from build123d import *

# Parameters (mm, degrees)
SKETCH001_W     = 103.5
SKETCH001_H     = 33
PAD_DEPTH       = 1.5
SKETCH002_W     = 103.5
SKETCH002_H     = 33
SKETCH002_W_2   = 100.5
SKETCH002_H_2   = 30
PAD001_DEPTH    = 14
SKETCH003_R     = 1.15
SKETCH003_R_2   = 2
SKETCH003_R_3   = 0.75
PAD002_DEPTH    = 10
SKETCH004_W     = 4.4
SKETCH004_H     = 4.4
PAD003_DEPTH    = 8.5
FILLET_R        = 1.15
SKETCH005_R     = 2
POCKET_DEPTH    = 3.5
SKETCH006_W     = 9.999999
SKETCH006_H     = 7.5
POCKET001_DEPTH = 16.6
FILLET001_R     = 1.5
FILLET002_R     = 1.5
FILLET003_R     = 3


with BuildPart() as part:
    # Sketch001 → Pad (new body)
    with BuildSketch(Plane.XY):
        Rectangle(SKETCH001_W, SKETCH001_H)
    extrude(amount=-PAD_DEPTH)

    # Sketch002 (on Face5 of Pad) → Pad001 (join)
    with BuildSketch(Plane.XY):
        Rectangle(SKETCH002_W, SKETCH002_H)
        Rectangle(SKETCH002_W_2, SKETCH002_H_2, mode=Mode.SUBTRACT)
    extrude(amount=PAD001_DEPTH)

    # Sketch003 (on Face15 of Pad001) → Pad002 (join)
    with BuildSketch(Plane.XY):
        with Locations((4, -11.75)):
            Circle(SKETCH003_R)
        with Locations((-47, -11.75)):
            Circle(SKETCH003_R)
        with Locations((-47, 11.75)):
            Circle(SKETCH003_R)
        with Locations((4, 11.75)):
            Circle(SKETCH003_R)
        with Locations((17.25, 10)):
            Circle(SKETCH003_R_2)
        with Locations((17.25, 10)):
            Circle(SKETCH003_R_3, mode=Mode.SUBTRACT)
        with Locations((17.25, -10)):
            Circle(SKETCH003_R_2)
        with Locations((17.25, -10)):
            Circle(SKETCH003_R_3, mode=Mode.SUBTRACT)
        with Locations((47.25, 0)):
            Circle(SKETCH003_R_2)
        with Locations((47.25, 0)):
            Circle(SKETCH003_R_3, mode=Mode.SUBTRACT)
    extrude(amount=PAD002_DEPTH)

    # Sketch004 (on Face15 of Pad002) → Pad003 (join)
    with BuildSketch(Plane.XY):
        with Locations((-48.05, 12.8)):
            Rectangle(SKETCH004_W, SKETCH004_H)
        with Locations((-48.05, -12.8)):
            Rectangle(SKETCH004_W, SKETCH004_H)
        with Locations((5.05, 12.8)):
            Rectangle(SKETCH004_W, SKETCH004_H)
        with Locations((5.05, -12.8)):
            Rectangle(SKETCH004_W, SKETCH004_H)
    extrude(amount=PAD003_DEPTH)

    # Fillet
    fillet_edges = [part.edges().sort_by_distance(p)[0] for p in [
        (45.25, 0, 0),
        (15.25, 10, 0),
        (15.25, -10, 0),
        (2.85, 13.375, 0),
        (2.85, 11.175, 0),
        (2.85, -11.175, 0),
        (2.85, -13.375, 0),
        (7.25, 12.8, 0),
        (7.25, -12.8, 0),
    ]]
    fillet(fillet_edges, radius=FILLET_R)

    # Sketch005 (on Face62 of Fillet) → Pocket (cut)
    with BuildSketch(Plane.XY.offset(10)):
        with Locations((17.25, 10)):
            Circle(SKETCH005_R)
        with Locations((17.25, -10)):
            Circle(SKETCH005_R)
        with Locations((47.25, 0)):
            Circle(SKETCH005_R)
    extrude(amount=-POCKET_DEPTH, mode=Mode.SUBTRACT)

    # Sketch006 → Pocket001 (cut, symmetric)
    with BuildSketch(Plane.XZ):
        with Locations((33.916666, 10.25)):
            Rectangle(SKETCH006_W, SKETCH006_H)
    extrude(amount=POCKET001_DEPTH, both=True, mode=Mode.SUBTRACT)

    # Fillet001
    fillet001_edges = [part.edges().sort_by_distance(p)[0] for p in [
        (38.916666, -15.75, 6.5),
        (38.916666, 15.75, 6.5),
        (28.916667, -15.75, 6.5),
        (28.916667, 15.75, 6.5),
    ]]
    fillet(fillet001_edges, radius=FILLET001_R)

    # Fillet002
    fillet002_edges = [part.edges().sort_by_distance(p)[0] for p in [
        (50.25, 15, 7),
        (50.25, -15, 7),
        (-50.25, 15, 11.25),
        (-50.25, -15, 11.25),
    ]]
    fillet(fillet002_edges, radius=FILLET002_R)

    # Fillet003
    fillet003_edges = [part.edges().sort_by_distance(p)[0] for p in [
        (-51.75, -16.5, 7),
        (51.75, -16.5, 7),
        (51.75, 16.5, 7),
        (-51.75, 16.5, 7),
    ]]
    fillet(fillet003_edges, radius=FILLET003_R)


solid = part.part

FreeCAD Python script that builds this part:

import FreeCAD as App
import Part
import Sketcher


def edges_at(feature, points):
    """Names of the edges that pass closest to the given points."""
    edges = feature.Shape.Edges
    near = lambda p: min(range(len(edges)), key=lambda i: edges[i].distToShape(Part.Vertex(*p))[0])
    return sorted({f"Edge{near(p) + 1}" for p in points})


def add_polygon(sketch, points):
    """Adds a closed chain of lines whose ends are joined by coincident constraints."""
    first, n = sketch.GeometryCount, len(points)
    for a, b in zip(points, points[1:] + points[:1]):
        sketch.addGeometry(Part.LineSegment(App.Vector(*a, 0), App.Vector(*b, 0)), False)
    for i in range(n):
        sketch.addConstraint(Sketcher.Constraint("Coincident", first + i, 2, first + (i + 1) % n, 1))

doc = App.newDocument("Part")
params = doc.addObject("Spreadsheet::Sheet", "Params")
for row, (alias, value) in enumerate([
    ("sketch1_height", "33 mm"),
    ("sketch1_width", "103.5 mm"),
    ("pad1_length", "1.5 mm"),
    ("sketch2_height", "33 mm"),
    ("sketch2_height2", "30 mm"),
    ("sketch2_width", "103.5 mm"),
    ("sketch2_width2", "100.5 mm"),
    ("pad2_length", "14 mm"),
    ("sketch3_diameter", "4 mm"),
    ("sketch3_diameter2", "2.3 mm"),
    ("sketch3_diameter3", "1.5 mm"),
    ("pad3_length", "10 mm"),
    ("sketch4_width", "4.4 mm"),
    ("pad4_length", "8.5 mm"),
    ("fillet_radius", "1.15 mm"),
    ("sketch5_diameter", "4 mm"),
    ("pocket1_length", "3.5 mm"),
    ("sketch6_width", "9.999999 mm"),
    ("sketch6_height", "7.5 mm"),
    ("pocket2_length", "33.2 mm"),
    ("fillet2_radius", "1.5 mm"),
    ("fillet3_radius", "1.5 mm"),
    ("fillet4_radius", "3 mm"),
], start=1):
    params.set(f"A{row}", alias)
    params.set(f"B{row}", "=" + value)
    params.setAlias(f"B{row}", alias)

body = doc.addObject("PartDesign::Body", "Body")

# Sketch on XY plane
sketch1 = body.newObject("Sketcher::SketchObject", "Sketch")
sketch1.AttachmentSupport = (doc.getObject("XY_Plane"), [""])
sketch1.MapMode = "FlatFace"
add_polygon(sketch1, [(-52, 16), (-52, -16), (52, -16), (52, 16)])  # lines 0-3
sketch1.addConstraint([
    Sketcher.Constraint("Vertical", 0),
    Sketcher.Constraint("Horizontal", 1),
    Sketcher.Constraint("Vertical", 2),
    Sketcher.Constraint("Horizontal", 3),
    Sketcher.Constraint("Symmetric", 0, 2, 2, 2, -1, 1),
    Sketcher.Constraint("DistanceY", 0, 2, 0, 1, 33.0),
    Sketcher.Constraint("DistanceX", 1, 1, 1, 2, 103.5),
])
sketch1.setExpression("Constraints[9]", "Params.sketch1_height")
sketch1.setExpression("Constraints[10]", "Params.sketch1_width")
pad1 = body.newObject("PartDesign::Pad", "Pad")
pad1.Profile = sketch1
pad1.setExpression("Length", "Params.pad1_length")
pad1.Reversed = True

# Sketch on XY plane
sketch2 = body.newObject("Sketcher::SketchObject", "Sketch001")
sketch2.AttachmentSupport = (doc.getObject("XY_Plane"), [""])
sketch2.MapMode = "FlatFace"
add_polygon(sketch2, [(-52, 16), (-52, -16), (52, -16), (52, 16)])  # lines 0-3
add_polygon(sketch2, [(50, -15), (-50, -15), (-50, 15), (50, 15)])  # lines 4-7
sketch2.addConstraint([
    Sketcher.Constraint("Vertical", 0),
    Sketcher.Constraint("Horizontal", 1),
    Sketcher.Constraint("Vertical", 2),
    Sketcher.Constraint("Horizontal", 3),
    Sketcher.Constraint("Horizontal", 4),
    Sketcher.Constraint("Vertical", 5),
    Sketcher.Constraint("Horizontal", 6),
    Sketcher.Constraint("Vertical", 7),
    Sketcher.Constraint("Symmetric", 0, 2, 2, 2, -1, 1),
    Sketcher.Constraint("Symmetric", 4, 2, 6, 2, -1, 1),
    Sketcher.Constraint("DistanceY", 0, 2, 0, 1, 33.0),
    Sketcher.Constraint("DistanceY", 5, 1, 5, 2, 30.0),
    Sketcher.Constraint("DistanceX", 1, 1, 1, 2, 103.5),
    Sketcher.Constraint("DistanceX", 4, 2, 4, 1, 100.5),
])
sketch2.setExpression("Constraints[18]", "Params.sketch2_height")
sketch2.setExpression("Constraints[19]", "Params.sketch2_height2")
sketch2.setExpression("Constraints[20]", "Params.sketch2_width")
sketch2.setExpression("Constraints[21]", "Params.sketch2_width2")
pad2 = body.newObject("PartDesign::Pad", "Pad001")
pad2.Profile = sketch2
pad2.setExpression("Length", "Params.pad2_length")

# Sketch on XY plane
sketch3 = body.newObject("Sketcher::SketchObject", "Sketch002")
sketch3.AttachmentSupport = (doc.getObject("XY_Plane"), [""])
sketch3.MapMode = "FlatFace"
sketch3.addGeometry([
    Part.Circle(App.Vector(4, -11.8, 0), App.Vector(0, 0, 1), 1.1),  # 0
    Part.Circle(App.Vector(-47, -11.8, 0), App.Vector(0, 0, 1), 1.1),  # 1
    Part.Circle(App.Vector(-47, 11.8, 0), App.Vector(0, 0, 1), 1.1),  # 2
    Part.Circle(App.Vector(4, 11.8, 0), App.Vector(0, 0, 1), 1.1),  # 3
    Part.Circle(App.Vector(17.2, 10, 0), App.Vector(0, 0, 1), 2),  # 4
    Part.Circle(App.Vector(17.2, 10, 0), App.Vector(0, 0, 1), 0.8),  # 5
    Part.Circle(App.Vector(17.2, -10, 0), App.Vector(0, 0, 1), 2),  # 6
    Part.Circle(App.Vector(17.2, -10, 0), App.Vector(0, 0, 1), 0.8),  # 7
    Part.Circle(App.Vector(47.2, 0, 0), App.Vector(0, 0, 1), 2),  # 8
    Part.Circle(App.Vector(47.2, 0, 0), App.Vector(0, 0, 1), 0.8),  # 9
], False)
sketch3.addConstraint([
    Sketcher.Constraint("Coincident", 5, 3, 4, 3),
    Sketcher.Constraint("Coincident", 7, 3, 6, 3),
    Sketcher.Constraint("Coincident", 9, 3, 8, 3),
    Sketcher.Constraint("Equal", 0, 1),
    Sketcher.Constraint("Equal", 1, 2),
    Sketcher.Constraint("Equal", 2, 3),
    Sketcher.Constraint("Equal", 4, 6),
    Sketcher.Constraint("Equal", 5, 7),
    Sketcher.Constraint("Equal", 6, 8),
    Sketcher.Constraint("Equal", 7, 9),
    Sketcher.Constraint("Symmetric", 1, 3, 2, 3, -1),
    Sketcher.Constraint("Symmetric", 0, 3, 3, 3, -1),
    Sketcher.Constraint("Symmetric", 4, 3, 6, 3, -1),
    Sketcher.Constraint("PointOnObject", 8, 3, -1),
    Sketcher.Constraint("Horizontal", 0, 3, 1, 3),
    Sketcher.Constraint("Diameter", 4, 4.0),
    Sketcher.Constraint("Diameter", 0, 2.3),
    Sketcher.Constraint("Diameter", 5, 1.5),
    Sketcher.Constraint("DistanceX", -1, 1, 0, 3, 4.0),
    Sketcher.Constraint("DistanceX", 1, 3, -1, 1, 47.0),
    Sketcher.Constraint("DistanceY", -1, 1, 4, 3, 10.0),
    Sketcher.Constraint("DistanceX", 4, 3, 8, 3, 30.0),
    Sketcher.Constraint("DistanceY", 1, 3, 2, 3, 23.5),
    Sketcher.Constraint("DistanceX", -1, 1, 4, 3, 17.25),
])
sketch3.setExpression("Constraints[15]", "Params.sketch3_diameter")
sketch3.setExpression("Constraints[16]", "Params.sketch3_diameter2")
sketch3.setExpression("Constraints[17]", "Params.sketch3_diameter3")
pad3 = body.newObject("PartDesign::Pad", "Pad002")
pad3.Profile = sketch3
pad3.setExpression("Length", "Params.pad3_length")

# Sketch on XY plane
sketch4 = body.newObject("Sketcher::SketchObject", "Sketch003")
sketch4.AttachmentSupport = (doc.getObject("XY_Plane"), [""])
sketch4.MapMode = "FlatFace"
add_polygon(sketch4, [(-50.2, 15), (-50.2, 10.6), (-45.9, 10.6), (-45.9, 15)])  # lines 0-3
add_polygon(sketch4, [(-50.2, -10.6), (-50.2, -15), (-45.9, -15), (-45.9, -10.6)])  # lines 4-7
add_polygon(sketch4, [(2.9, 15), (2.9, 10.6), (7.2, 10.6), (7.2, 15)])  # lines 8-11
add_polygon(sketch4, [(2.9, -10.6), (2.9, -15), (7.2, -15), (7.2, -10.6)])  # lines 12-15
sketch4.addConstraint([
    Sketcher.Constraint("Vertical", 0),
    Sketcher.Constraint("Horizontal", 1),
    Sketcher.Constraint("Vertical", 2),
    Sketcher.Constraint("Horizontal", 3),
    Sketcher.Constraint("Vertical", 4),
    Sketcher.Constraint("Horizontal", 5),
    Sketcher.Constraint("Vertical", 6),
    Sketcher.Constraint("Horizontal", 7),
    Sketcher.Constraint("Vertical", 8),
    Sketcher.Constraint("Horizontal", 9),
    Sketcher.Constraint("Vertical", 10),
    Sketcher.Constraint("Horizontal", 11),
    Sketcher.Constraint("Vertical", 12),
    Sketcher.Constraint("Horizontal", 13),
    Sketcher.Constraint("Vertical", 14),
    Sketcher.Constraint("Horizontal", 15),
    Sketcher.Constraint("Symmetric", 3, 2, 4, 2, -1),
    Sketcher.Constraint("Symmetric", 1, 2, 6, 2, -1),
    Sketcher.Constraint("Symmetric", 11, 2, 12, 2, -1),
    Sketcher.Constraint("Symmetric", 9, 2, 14, 2, -1),
    Sketcher.Constraint("Horizontal", 1, 2, 8, 2),
    Sketcher.Constraint("Horizontal", 3, 2, 10, 2),
    Sketcher.Constraint("Equal", 7, 9),
    Sketcher.Constraint("Equal", 15, 0),
    Sketcher.Constraint("DistanceX", 1, 1, 1, 2, 4.4),
    Sketcher.Constraint("DistanceY", -1, 1, 2, 2, 15.0),
    Sketcher.Constraint("DistanceX", 1, 2, 8, 2, 48.7),
    Sketcher.Constraint("DistanceX", 0, 2, -1, 1, 50.25),
])
sketch4.setExpression("Constraints[40]", "Params.sketch4_width")
pad4 = body.newObject("PartDesign::Pad", "Pad003")
pad4.Profile = sketch4
pad4.setExpression("Length", "Params.pad4_length")
doc.recompute()

fillet = body.newObject("PartDesign::Fillet", "Fillet")
fillet.Base = (pad4, edges_at(pad4, [
    (45.25, 0, 0),
    (15.25, 10, 0),
    (15.25, -10, 0),
    (2.85, 12.8, 0),
    (2.85, 12.8, 0),
    (2.85, -12.8, 0),
    (2.85, -12.8, 0),
    (7.25, 12.8, 0),
    (7.25, -12.8, 0),
]))
fillet.setExpression("Radius", "Params.fillet_radius")

# Sketch on XY plane
sketch5 = body.newObject("Sketcher::SketchObject", "Sketch004")
sketch5.AttachmentSupport = (doc.getObject("XY_Plane"), [""])
sketch5.MapMode = "FlatFace"
sketch5.AttachmentOffset = App.Placement(App.Vector(0, 0, 10), App.Rotation())
sketch5.addGeometry([
    Part.Circle(App.Vector(17.2, 10, 0), App.Vector(0, 0, 1), 2),
    Part.Circle(App.Vector(17.2, -10, 0), App.Vector(0, 0, 1), 2),
    Part.Circle(App.Vector(47.2, 0, 0), App.Vector(0, 0, 1), 2),
], False)
sketch5.addConstraint([
    Sketcher.Constraint("Equal", 0, 1),
    Sketcher.Constraint("Equal", 1, 2),
    Sketcher.Constraint("Symmetric", 0, 3, 1, 3, -1),
    Sketcher.Constraint("PointOnObject", 2, 3, -1),
    Sketcher.Constraint("Diameter", 0, 4.0),
    Sketcher.Constraint("DistanceY", -1, 1, 0, 3, 10.0),
    Sketcher.Constraint("DistanceX", 0, 3, 2, 3, 30.0),
    Sketcher.Constraint("DistanceX", -1, 1, 0, 3, 17.25),
])
sketch5.setExpression("Constraints[4]", "Params.sketch5_diameter")
pocket1 = body.newObject("PartDesign::Pocket", "Pocket")
pocket1.Profile = sketch5
pocket1.setExpression("Length", "Params.pocket1_length")

# Sketch on XZ plane
sketch6 = body.newObject("Sketcher::SketchObject", "Sketch005")
sketch6.AttachmentSupport = (doc.getObject("XZ_Plane"), [""])
sketch6.MapMode = "FlatFace"
add_polygon(sketch6, [(29, 14), (29, 6), (39, 6), (39, 14)])  # lines 0-3
sketch6.addConstraint([
    Sketcher.Constraint("Vertical", 0),
    Sketcher.Constraint("Horizontal", 1),
    Sketcher.Constraint("Vertical", 2),
    Sketcher.Constraint("Horizontal", 3),
    Sketcher.Constraint("DistanceX", 1, 1, 1, 2, 9.999999),
    Sketcher.Constraint("DistanceY", 0, 2, 0, 1, 7.5),
    Sketcher.Constraint("DistanceY", -1, 1, 2, 2, 14.0),
    Sketcher.Constraint("DistanceX", -1, 1, 0, 2, 28.916667),
])
sketch6.setExpression("Constraints[8]", "Params.sketch6_width")
sketch6.setExpression("Constraints[9]", "Params.sketch6_height")
pocket2 = body.newObject("PartDesign::Pocket", "Pocket001")
pocket2.Profile = sketch6
pocket2.setExpression("Length", "Params.pocket2_length")
pocket2.Midplane = True
doc.recompute()

fillet2 = body.newObject("PartDesign::Fillet", "Fillet001")
fillet2.Base = (pocket2, edges_at(pocket2, [
    (38.917, -15.75, 6.5),
    (38.917, 15.75, 6.5),
    (28.917, -15.75, 6.5),
    (28.917, 15.75, 6.5),
]))
fillet2.setExpression("Radius", "Params.fillet2_radius")
doc.recompute()

fillet3 = body.newObject("PartDesign::Fillet", "Fillet002")
fillet3.Base = (fillet2, edges_at(fillet2, [
    (50.25, 15, 7),
    (50.25, -15, 7),
    (-50.25, 15, 11.25),
    (-50.25, -15, 11.25),
]))
fillet3.setExpression("Radius", "Params.fillet3_radius")
doc.recompute()

fillet4 = body.newObject("PartDesign::Fillet", "Fillet003")
fillet4.Base = (fillet3, edges_at(fillet3, [
    (-51.75, -16.5, 6.25),
    (51.75, -16.5, 6.25),
    (51.75, 16.5, 6.25),
    (-51.75, 16.5, 6.25),
]))
fillet4.setExpression("Radius", "Params.fillet4_radius")

doc.recompute()
